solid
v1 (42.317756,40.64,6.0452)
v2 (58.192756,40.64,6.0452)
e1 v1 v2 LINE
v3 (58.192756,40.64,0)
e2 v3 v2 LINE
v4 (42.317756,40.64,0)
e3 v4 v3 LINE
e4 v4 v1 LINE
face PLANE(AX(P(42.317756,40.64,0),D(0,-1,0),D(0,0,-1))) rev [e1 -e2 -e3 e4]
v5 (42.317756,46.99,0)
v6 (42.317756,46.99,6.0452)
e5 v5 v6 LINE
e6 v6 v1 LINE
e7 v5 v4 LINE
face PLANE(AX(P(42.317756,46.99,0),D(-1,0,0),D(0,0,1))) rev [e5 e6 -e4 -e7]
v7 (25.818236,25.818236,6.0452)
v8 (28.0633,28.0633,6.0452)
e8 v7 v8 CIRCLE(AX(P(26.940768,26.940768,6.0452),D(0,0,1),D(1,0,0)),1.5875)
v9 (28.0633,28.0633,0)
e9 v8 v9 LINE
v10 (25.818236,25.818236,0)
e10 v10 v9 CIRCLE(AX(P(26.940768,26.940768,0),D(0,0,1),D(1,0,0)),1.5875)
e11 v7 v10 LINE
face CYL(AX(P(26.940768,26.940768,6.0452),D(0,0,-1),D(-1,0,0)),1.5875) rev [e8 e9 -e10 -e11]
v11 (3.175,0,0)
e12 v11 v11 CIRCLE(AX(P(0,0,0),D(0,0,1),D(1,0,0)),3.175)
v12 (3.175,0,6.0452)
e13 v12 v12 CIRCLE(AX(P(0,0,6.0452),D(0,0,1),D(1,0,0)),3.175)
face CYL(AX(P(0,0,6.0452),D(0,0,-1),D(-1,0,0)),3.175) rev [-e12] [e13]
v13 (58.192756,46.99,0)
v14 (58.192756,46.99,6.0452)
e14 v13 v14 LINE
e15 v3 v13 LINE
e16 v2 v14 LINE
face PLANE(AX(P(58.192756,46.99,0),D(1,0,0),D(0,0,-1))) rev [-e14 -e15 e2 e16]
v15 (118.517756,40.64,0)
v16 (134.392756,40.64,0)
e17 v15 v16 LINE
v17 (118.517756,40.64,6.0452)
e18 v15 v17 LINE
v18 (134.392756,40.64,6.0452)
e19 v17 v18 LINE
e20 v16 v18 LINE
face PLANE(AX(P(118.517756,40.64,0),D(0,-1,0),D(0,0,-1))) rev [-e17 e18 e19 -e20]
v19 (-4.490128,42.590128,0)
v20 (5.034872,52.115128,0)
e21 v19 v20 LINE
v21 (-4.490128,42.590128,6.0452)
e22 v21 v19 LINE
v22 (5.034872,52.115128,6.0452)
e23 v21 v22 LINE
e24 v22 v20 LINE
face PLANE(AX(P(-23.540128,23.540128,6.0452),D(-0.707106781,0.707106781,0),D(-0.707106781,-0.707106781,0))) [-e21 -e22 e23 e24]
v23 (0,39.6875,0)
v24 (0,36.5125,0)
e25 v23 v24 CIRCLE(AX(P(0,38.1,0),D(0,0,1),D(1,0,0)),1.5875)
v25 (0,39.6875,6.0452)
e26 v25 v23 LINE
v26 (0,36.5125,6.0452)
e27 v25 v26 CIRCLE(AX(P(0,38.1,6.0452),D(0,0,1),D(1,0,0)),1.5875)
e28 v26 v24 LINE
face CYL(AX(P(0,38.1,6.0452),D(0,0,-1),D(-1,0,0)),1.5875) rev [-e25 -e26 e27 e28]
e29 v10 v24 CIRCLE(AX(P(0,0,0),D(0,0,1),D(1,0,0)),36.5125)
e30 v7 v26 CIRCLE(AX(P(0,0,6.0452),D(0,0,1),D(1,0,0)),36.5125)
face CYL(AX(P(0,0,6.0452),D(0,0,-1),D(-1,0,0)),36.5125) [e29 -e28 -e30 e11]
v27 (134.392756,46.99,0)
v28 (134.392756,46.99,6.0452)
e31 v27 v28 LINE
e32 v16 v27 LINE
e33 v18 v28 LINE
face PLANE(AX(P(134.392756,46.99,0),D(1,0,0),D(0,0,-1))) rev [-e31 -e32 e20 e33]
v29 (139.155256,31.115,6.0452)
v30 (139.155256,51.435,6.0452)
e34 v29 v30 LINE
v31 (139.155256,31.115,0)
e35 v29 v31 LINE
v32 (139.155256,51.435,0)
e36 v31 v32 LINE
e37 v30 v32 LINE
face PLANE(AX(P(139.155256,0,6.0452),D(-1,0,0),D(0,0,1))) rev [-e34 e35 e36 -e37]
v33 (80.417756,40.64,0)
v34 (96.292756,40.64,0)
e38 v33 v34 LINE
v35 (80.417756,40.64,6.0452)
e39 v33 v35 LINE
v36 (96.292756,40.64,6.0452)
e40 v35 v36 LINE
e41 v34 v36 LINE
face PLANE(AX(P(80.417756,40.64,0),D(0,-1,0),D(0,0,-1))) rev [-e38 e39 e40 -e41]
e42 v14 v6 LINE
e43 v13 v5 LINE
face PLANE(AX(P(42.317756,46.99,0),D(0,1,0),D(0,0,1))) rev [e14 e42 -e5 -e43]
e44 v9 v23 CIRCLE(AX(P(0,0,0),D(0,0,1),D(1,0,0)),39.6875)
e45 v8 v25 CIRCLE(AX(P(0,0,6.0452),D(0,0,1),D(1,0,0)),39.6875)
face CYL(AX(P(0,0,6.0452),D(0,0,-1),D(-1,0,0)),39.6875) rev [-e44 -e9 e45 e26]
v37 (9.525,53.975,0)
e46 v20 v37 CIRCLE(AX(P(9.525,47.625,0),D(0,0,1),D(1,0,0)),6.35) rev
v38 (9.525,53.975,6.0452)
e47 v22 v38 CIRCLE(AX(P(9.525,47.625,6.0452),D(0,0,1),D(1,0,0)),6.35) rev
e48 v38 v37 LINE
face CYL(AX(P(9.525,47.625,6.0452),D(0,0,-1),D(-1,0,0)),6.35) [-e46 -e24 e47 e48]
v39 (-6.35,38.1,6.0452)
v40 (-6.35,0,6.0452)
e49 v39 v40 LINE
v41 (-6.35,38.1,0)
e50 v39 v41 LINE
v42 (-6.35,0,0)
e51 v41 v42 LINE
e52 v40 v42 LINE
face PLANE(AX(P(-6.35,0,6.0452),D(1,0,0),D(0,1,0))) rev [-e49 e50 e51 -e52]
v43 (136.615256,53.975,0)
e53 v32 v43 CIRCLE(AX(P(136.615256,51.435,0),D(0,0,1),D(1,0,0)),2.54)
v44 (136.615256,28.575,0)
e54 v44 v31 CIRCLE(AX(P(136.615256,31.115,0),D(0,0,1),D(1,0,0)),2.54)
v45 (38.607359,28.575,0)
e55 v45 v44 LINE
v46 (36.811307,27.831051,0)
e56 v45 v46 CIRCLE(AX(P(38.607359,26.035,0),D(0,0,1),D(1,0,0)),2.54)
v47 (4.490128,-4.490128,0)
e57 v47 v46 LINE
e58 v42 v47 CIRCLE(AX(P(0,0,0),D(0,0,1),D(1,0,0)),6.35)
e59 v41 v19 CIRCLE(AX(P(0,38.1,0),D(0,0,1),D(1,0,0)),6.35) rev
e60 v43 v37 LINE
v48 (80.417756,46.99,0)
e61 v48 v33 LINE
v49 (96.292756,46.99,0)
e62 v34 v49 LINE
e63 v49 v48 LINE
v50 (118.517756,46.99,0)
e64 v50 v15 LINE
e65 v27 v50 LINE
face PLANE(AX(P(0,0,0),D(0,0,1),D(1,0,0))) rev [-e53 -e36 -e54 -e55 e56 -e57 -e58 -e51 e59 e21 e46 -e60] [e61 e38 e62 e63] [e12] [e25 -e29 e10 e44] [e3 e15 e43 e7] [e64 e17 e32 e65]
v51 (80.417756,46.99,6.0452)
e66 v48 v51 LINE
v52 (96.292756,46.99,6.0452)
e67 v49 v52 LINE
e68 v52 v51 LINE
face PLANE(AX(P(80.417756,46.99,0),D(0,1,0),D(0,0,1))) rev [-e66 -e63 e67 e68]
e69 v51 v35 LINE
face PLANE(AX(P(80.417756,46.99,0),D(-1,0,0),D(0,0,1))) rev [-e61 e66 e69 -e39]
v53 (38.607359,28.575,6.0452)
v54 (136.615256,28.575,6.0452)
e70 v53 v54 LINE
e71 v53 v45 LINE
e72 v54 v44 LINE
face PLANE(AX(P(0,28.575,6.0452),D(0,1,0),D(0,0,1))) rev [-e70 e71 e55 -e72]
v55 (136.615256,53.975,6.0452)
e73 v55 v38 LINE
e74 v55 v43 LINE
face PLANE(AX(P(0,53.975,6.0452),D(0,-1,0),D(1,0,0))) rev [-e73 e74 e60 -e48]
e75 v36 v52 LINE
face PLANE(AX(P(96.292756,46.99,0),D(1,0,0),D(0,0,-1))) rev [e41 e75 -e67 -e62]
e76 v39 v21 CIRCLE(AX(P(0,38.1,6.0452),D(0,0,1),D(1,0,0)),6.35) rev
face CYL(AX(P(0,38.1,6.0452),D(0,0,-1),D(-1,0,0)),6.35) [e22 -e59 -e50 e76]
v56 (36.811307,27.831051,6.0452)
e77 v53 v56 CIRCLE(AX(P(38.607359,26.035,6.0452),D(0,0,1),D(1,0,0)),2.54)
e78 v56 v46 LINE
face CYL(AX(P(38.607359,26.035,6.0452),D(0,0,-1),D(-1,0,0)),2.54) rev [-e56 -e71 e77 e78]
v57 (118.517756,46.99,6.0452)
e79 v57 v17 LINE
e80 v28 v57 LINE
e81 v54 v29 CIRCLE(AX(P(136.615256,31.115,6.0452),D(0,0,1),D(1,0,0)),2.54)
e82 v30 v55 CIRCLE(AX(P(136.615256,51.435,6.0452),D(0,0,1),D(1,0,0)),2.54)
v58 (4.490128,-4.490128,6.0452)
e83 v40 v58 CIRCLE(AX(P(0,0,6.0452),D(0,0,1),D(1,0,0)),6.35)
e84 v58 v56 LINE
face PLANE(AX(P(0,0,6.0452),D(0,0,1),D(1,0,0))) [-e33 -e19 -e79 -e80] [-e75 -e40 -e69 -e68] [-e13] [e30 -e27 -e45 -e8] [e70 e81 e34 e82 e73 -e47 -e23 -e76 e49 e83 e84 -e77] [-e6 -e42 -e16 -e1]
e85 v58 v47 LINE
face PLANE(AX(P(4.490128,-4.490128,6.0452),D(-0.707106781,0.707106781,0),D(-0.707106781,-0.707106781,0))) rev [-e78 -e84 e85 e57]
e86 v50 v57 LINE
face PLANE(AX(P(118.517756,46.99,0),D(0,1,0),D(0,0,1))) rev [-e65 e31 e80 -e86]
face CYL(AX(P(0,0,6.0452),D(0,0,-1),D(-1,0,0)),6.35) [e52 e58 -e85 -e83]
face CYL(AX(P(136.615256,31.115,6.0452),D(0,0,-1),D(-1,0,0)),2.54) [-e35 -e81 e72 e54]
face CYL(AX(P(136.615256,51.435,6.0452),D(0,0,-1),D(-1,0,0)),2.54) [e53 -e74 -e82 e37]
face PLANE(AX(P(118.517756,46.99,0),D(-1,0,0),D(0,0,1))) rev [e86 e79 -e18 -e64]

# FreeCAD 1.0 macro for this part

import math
import FreeCAD as App
import Part
import Sketcher

V = App.Vector
Q = App.Units.Quantity

doc = App.newDocument("Part")
body = doc.addObject("PartDesign::Body", "Body")

sketch1 = doc.addObject("Sketcher::SketchObject", "Sketch")
body.addObject(sketch1)
sketch1.AttachmentSupport = (doc.XY_Plane, [""])
sketch1.MapMode = "FlatFace"
sketch1.addGeometry(Part.LineSegment(V(-6.3, 38.1, 0), V(-6.3, 0, 0)), False)
sketch1.addGeometry(Part.ArcOfCircle(Part.Circle(V(0, 0, 0), V(0, 0, 1), 6.4), math.radians(-180), math.radians(-45)), False)
sketch1.addGeometry(Part.LineSegment(V(4.5, -4.5, 0), V(31.4, 22.5, 0)), False)
sketch1.addGeometry(Part.LineSegment(V(31.4, 22.5, 0), V(36.8, 27.8, 0)), False)
sketch1.addGeometry(Part.ArcOfCircle(Part.Circle(V(38.6, 26, 0), V(0, 0, 1), 2.5), math.radians(90), math.radians(135)), False)
sketch1.addGeometry(Part.LineSegment(V(38.6, 28.6, 0), V(136.6, 28.6, 0)), False)
sketch1.addGeometry(Part.ArcOfCircle(Part.Circle(V(136.6, 31.1, 0), V(0, 0, 1), 2.5), math.radians(-90), math.radians(0)), False)
sketch1.addGeometry(Part.LineSegment(V(139.2, 31.1, 0), V(139.2, 51.4, 0)), False)
sketch1.addGeometry(Part.ArcOfCircle(Part.Circle(V(136.6, 51.4, 0), V(0, 0, 1), 2.5), math.radians(0), math.radians(90)), False)
sketch1.addGeometry(Part.LineSegment(V(136.6, 54, 0), V(9.5, 54, 0)), False)
sketch1.addGeometry(Part.ArcOfCircle(Part.Circle(V(9.5, 47.6, 0), V(0, 0, 1), 6.4), math.radians(90), math.radians(135)), False)
sketch1.addGeometry(Part.LineSegment(V(5, 52.1, 0), V(-4.5, 42.6, 0)), False)
sketch1.addGeometry(Part.ArcOfCircle(Part.Circle(V(0, 38.1, 0), V(0, 0, 1), 6.4), math.radians(135), math.radians(180)), False)
sketch1.addGeometry(Part.Circle(V(0, 0, 0), V(0, 0, 1), 3.2), False)
sketch1.addGeometry(Part.ArcOfCircle(Part.Circle(V(26.9, 26.9, 0), V(0, 0, 1), 1.6), math.radians(-135), math.radians(45)), False)
sketch1.addGeometry(Part.ArcOfCircle(Part.Circle(V(0, 0, 0), V(0, 0, 1), 36.5), math.radians(45), math.radians(90)), False)
sketch1.addGeometry(Part.ArcOfCircle(Part.Circle(V(0, 38.1, 0), V(0, 0, 1), 1.6), math.radians(90), math.radians(270)), False)
sketch1.addGeometry(Part.ArcOfCircle(Part.Circle(V(0, 0, 0), V(0, 0, 1), 39.7), math.radians(45), math.radians(90)), False)
sketch1.addConstraint(Sketcher.Constraint("Tangent", 0, 2, 1, 1))
sketch1.addConstraint(Sketcher.Constraint("Tangent", 1, 2, 2, 1))
sketch1.addConstraint(Sketcher.Constraint("Coincident", 2, 2, 3, 1))
sketch1.addConstraint(Sketcher.Constraint("Tangent", 3, 2, 4, 2))
sketch1.addConstraint(Sketcher.Constraint("Tangent", 4, 1, 5, 1))
sketch1.addConstraint(Sketcher.Constraint("Tangent", 5, 2, 6, 1))
sketch1.addConstraint(Sketcher.Constraint("Tangent", 6, 2, 7, 1))
sketch1.addConstraint(Sketcher.Constraint("Tangent", 7, 2, 8, 1))
sketch1.addConstraint(Sketcher.Constraint("Tangent", 8, 2, 9, 1))
sketch1.addConstraint(Sketcher.Constraint("Tangent", 9, 2, 10, 1))
sketch1.addConstraint(Sketcher.Constraint("Tangent", 10, 2, 11, 1))
sketch1.addConstraint(Sketcher.Constraint("Tangent", 11, 2, 12, 1))
sketch1.addConstraint(Sketcher.Constraint("Tangent", 12, 2, 0, 1))
sketch1.addConstraint(Sketcher.Constraint("Tangent", 14, 1, 15, 1))
sketch1.addConstraint(Sketcher.Constraint("Tangent", 15, 2, 16, 2))
sketch1.addConstraint(Sketcher.Constraint("Tangent", 16, 1, 17, 2))
sketch1.addConstraint(Sketcher.Constraint("Tangent", 17, 1, 14, 2))
sketch1.addConstraint(Sketcher.Constraint("Vertical", 0))
sketch1.addConstraint(Sketcher.Constraint("Horizontal", 5))
sketch1.addConstraint(Sketcher.Constraint("Vertical", 7))
sketch1.addConstraint(Sketcher.Constraint("Horizontal", 9))
sketch1.addConstraint(Sketcher.Constraint("Coincident", 1, 3, -1, 1))
sketch1.addConstraint(Sketcher.Constraint("Coincident", 13, 3, -1, 1))
sketch1.addConstraint(Sketcher.Constraint("Coincident", 15, 3, -1, 1))
sketch1.addConstraint(Sketcher.Constraint("Coincident", 17, 3, -1, 1))
sketch1.addConstraint(Sketcher.Constraint("Coincident", 16, 3, 12, 3))
sketch1.addConstraint(Sketcher.Constraint("Equal", 4, 6))
sketch1.addConstraint(Sketcher.Constraint("Equal", 6, 8))
sketch1.addConstraint(Sketcher.Constraint("Equal", 1, 10))
sketch1.addConstraint(Sketcher.Constraint("Equal", 10, 12))
sketch1.addConstraint(Sketcher.Constraint("Parallel", 2, 3))
sketch1.addConstraint(Sketcher.Constraint("Parallel", 3, 11))
sketch1.addConstraint(Sketcher.Constraint("Radius", 4, Q("0.1 in")))
sketch1.addConstraint(Sketcher.Constraint("Diameter", 13, Q("0.25 in")))
sketch1.addConstraint(Sketcher.Constraint("Radius", 1, Q("0.25 in")))
sketch1.addConstraint(Sketcher.Constraint("DistanceY", 0, 2, 0, 1, Q("1.5 in")))
sketch1.addConstraint(Sketcher.Constraint("DistanceY", 7, 1, 7, 2, Q("0.8 in")))
sketch1.addConstraint(Sketcher.Constraint("Angle", 2, Q("45 deg")))
sketch1.addConstraint(Sketcher.Constraint("Radius", 14, Q("0.0625 in")))
sketch1.addConstraint(Sketcher.Constraint("Distance", 2, Q("1.5 in")))
sketch1.addConstraint(Sketcher.Constraint("DistanceY", -1, 1, 4, 3, Q("1.025 in")))
sketch1.addConstraint(Sketcher.Constraint("DistanceX", -1, 1, 17, 1, Q("28.0633 mm")))
sketch1.addConstraint(Sketcher.Constraint("DistanceX", 5, 1, 5, 2, Q("98.007898 mm")))
pad1 = doc.addObject("PartDesign::Pad", "Pad")
body.addObject(pad1)
pad1.Profile = sketch1
pad1.Length = Q("0.238 in")

sketch2 = doc.addObject("Sketcher::SketchObject", "Sketch001")
body.addObject(sketch2)
sketch2.AttachmentSupport = (doc.XY_Plane, [""])
sketch2.MapMode = "FlatFace"
sketch2.AttachmentOffset = App.Placement(V(0, 0, 0.238 * 25.4), App.Rotation())
sketch2.addGeometry(Part.LineSegment(V(119, 47, 0), V(119, 41, 0)), False)
sketch2.addGeometry(Part.LineSegment(V(119, 41, 0), V(134, 41, 0)), False)
sketch2.addGeometry(Part.LineSegment(V(134, 41, 0), V(134, 47, 0)), False)
sketch2.addGeometry(Part.LineSegment(V(134, 47, 0), V(119, 47, 0)), False)
sketch2.addGeometry(Part.LineSegment(V(80, 47, 0), V(80, 41, 0)), False)
sketch2.addGeometry(Part.LineSegment(V(80, 41, 0), V(96, 41, 0)), False)
sketch2.addGeometry(Part.LineSegment(V(96, 41, 0), V(96, 47, 0)), False)
sketch2.addGeometry(Part.LineSegment(V(96, 47, 0), V(80, 47, 0)), False)
sketch2.addGeometry(Part.LineSegment(V(42, 47, 0), V(42, 41, 0)), False)
sketch2.addGeometry(Part.LineSegment(V(42, 41, 0), V(58, 41, 0)), False)
sketch2.addGeometry(Part.LineSegment(V(58, 41, 0), V(58, 47, 0)), False)
sketch2.addGeometry(Part.LineSegment(V(58, 47, 0), V(42, 47, 0)), False)
sketch2.addConstraint(Sketcher.Constraint("Coincident", 0, 2, 1, 1))
sketch2.addConstraint(Sketcher.Constraint("Coincident", 1, 2, 2, 1))
sketch2.addConstraint(Sketcher.Constraint("Coincident", 2, 2, 3, 1))
sketch2.addConstraint(Sketcher.Constraint("Coincident", 3, 2, 0, 1))
sketch2.addConstraint(Sketcher.Constraint("Coincident", 4, 2, 5, 1))
sketch2.addConstraint(Sketcher.Constraint("Coincident", 5, 2, 6, 1))
sketch2.addConstraint(Sketcher.Constraint("Coincident", 6, 2, 7, 1))
sketch2.addConstraint(Sketcher.Constraint("Coincident", 7, 2, 4, 1))
sketch2.addConstraint(Sketcher.Constraint("Coincident", 8, 2, 9, 1))
sketch2.addConstraint(Sketcher.Constraint("Coincident", 9, 2, 10, 1))
sketch2.addConstraint(Sketcher.Constraint("Coincident", 10, 2, 11, 1))
sketch2.addConstraint(Sketcher.Constraint("Coincident", 11, 2, 8, 1))
sketch2.addConstraint(Sketcher.Constraint("Vertical", 0))
sketch2.addConstraint(Sketcher.Constraint("Horizontal", 1))
sketch2.addConstraint(Sketcher.Constraint("Vertical", 2))
sketch2.addConstraint(Sketcher.Constraint("Horizontal", 3))
sketch2.addConstraint(Sketcher.Constraint("Vertical", 4))
sketch2.addConstraint(Sketcher.Constraint("Horizontal", 5))
sketch2.addConstraint(Sketcher.Constraint("Vertical", 6))
sketch2.addConstraint(Sketcher.Constraint("Horizontal", 7))
sketch2.addConstraint(Sketcher.Constraint("Vertical", 8))
sketch2.addConstraint(Sketcher.Constraint("Horizontal", 9))
sketch2.addConstraint(Sketcher.Constraint("Vertical", 10))
sketch2.addConstraint(Sketcher.Constraint("Horizontal", 11))
sketch2.addConstraint(Sketcher.Constraint("Horizontal", 1, 2, 4, 2))
sketch2.addConstraint(Sketcher.Constraint("Horizontal", 3, 2, 6, 2))
sketch2.addConstraint(Sketcher.Constraint("Horizontal", 5, 2, 8, 2))
sketch2.addConstraint(Sketcher.Constraint("Horizontal", 7, 2, 10, 2))
sketch2.addConstraint(Sketcher.Constraint("Equal", 3, 5))
sketch2.addConstraint(Sketcher.Constraint("Equal", 7, 9))
sketch2.addConstraint(Sketcher.Constraint("DistanceX", 8, 2, 0, 2, Q("3 in")))
sketch2.addConstraint(Sketcher.Constraint("DistanceY", 0, 2, 0, 1, Q("0.25 in")))
sketch2.addConstraint(Sketcher.Constraint("DistanceY", -1, 1, 0, 2, Q("1.6 in")))
sketch2.addConstraint(Sketcher.Constraint("DistanceX", 4, 2, 0, 2, Q("1.5 in")))
sketch2.addConstraint(Sketcher.Constraint("DistanceX", 1, 1, 1, 2, Q("0.625 in")))
sketch2.addConstraint(Sketcher.Constraint("DistanceX", -1, 1, 0, 2, Q("118.517756 mm")))
pocket1 = doc.addObject("PartDesign::Pocket", "Pocket")
body.addObject(pocket1)
pocket1.Profile = sketch2
pocket1.Length = Q("0.238 in")

doc.recompute()
